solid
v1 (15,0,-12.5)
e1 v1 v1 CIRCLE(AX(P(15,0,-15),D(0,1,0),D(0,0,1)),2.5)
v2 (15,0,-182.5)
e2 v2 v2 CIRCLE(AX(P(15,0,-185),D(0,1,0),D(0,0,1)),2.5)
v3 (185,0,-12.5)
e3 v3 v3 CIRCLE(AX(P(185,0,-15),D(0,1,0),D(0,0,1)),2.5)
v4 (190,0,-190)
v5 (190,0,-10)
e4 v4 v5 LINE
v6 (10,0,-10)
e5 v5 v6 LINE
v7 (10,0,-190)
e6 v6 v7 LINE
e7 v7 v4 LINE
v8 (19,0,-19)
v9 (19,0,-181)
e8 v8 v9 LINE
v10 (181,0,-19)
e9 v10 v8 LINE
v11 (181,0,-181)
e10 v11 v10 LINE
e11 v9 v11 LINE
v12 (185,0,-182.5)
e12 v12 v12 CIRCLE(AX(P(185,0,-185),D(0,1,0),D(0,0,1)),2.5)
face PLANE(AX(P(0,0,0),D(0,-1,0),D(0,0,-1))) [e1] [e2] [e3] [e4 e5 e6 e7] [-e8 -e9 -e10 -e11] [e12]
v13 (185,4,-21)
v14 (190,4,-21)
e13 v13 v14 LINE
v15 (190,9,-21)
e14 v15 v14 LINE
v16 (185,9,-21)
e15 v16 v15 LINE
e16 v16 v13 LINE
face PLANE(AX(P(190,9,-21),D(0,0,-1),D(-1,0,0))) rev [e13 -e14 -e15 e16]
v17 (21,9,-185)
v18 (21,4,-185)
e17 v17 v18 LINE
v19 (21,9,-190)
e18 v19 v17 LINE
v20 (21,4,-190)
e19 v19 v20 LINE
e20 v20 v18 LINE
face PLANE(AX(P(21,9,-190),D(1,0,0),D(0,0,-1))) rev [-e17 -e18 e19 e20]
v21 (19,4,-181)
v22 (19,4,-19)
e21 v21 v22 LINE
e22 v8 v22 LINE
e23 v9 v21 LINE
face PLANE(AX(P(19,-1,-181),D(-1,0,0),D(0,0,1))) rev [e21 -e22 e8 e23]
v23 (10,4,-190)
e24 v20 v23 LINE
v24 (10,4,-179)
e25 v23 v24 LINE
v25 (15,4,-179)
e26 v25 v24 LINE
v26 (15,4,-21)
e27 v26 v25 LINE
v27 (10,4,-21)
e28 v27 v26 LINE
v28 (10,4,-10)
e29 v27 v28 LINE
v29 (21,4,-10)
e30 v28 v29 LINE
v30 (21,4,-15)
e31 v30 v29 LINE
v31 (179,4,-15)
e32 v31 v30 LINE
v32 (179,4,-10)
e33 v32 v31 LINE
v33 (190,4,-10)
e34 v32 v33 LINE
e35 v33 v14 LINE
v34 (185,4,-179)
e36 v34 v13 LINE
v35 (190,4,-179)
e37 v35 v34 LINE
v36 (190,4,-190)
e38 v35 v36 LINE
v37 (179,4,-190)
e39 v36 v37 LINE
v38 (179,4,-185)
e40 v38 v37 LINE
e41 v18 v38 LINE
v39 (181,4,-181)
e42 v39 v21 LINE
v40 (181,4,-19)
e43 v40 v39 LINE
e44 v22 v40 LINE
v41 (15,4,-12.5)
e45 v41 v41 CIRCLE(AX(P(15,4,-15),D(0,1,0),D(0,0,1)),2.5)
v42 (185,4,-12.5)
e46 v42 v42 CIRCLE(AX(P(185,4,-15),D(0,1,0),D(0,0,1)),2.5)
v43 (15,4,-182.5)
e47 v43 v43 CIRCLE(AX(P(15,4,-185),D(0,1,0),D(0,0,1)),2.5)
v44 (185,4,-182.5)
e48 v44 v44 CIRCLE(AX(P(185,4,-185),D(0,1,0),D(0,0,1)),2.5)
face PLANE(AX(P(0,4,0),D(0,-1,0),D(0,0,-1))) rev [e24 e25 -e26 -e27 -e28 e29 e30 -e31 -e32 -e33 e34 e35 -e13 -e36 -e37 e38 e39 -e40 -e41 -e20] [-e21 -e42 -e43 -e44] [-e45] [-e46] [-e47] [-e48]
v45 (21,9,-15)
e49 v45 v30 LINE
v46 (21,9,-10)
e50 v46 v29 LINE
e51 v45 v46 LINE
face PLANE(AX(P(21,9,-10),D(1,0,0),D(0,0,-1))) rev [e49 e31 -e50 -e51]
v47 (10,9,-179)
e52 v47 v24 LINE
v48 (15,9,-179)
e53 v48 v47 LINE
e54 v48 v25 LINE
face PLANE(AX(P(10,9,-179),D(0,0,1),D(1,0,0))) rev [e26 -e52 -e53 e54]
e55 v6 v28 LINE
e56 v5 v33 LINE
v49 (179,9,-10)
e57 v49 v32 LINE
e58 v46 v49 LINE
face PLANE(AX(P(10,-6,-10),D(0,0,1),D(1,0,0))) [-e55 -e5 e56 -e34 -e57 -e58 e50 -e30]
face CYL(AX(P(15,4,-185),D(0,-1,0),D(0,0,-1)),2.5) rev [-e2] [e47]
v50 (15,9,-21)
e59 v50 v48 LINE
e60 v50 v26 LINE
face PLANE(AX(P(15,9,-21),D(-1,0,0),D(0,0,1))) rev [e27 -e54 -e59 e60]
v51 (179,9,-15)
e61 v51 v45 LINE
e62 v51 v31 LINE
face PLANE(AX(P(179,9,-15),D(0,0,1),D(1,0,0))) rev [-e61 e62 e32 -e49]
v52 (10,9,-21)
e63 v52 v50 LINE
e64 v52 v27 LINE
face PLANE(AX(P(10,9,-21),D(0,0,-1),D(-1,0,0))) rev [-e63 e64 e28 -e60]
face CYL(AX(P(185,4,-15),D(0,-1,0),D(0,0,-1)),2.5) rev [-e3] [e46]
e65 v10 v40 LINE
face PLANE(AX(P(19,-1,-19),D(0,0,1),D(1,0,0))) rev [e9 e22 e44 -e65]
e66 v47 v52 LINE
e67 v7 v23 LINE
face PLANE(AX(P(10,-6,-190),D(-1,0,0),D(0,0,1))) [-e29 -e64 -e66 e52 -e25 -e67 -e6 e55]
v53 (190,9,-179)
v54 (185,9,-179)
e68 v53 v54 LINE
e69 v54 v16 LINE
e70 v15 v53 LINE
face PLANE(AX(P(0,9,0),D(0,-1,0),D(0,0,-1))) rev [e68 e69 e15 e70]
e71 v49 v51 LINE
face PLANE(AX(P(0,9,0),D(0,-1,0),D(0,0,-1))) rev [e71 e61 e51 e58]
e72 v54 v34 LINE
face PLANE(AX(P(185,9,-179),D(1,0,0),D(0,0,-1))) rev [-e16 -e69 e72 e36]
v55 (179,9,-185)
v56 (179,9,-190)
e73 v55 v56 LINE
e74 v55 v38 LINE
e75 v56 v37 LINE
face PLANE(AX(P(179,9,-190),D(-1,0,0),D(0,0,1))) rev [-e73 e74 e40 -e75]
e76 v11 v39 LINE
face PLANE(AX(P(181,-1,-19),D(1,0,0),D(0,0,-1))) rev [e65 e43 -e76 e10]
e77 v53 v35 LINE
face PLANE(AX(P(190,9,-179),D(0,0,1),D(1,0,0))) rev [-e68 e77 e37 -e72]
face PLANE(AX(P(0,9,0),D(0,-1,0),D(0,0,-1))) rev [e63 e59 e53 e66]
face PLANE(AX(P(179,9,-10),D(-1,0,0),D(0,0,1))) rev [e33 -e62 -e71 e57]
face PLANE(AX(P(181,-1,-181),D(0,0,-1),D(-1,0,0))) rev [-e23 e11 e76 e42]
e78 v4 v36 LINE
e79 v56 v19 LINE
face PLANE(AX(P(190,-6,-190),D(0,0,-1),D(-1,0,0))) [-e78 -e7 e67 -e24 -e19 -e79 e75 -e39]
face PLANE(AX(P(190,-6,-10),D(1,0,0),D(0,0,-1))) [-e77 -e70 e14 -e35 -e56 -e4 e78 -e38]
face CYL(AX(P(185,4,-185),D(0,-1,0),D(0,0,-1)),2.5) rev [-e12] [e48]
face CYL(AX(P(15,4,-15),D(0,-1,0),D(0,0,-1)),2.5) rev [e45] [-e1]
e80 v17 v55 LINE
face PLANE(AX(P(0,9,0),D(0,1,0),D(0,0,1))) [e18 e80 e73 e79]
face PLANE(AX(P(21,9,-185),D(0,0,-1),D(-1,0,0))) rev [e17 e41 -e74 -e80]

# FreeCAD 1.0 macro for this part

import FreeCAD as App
import Part
import Sketcher

V = App.Vector
Q = App.Units.Quantity

doc = App.newDocument("Part")
body = doc.addObject("PartDesign::Body", "Body")

# Sketch on XZ plane
sketch1 = doc.addObject("Sketcher::SketchObject", "Sketch")
body.addObject(sketch1)
sketch1.AttachmentSupport = (doc.XZ_Plane, [""])
sketch1.MapMode = "FlatFace"
sketch1.addGeometry([
    Part.LineSegment(V(0, -200, 0), V(0, 0, 0)),  # 0
    Part.LineSegment(V(0, 0, 0), V(200, 0, 0)),  # 1
    Part.LineSegment(V(200, 0, 0), V(200, -200, 0)),  # 2
    Part.LineSegment(V(200, -200, 0), V(0, -200, 0)),  # 3
    Part.Circle(V(15, -15, 0), V(0, 0, 1), 2.5),  # 4
    Part.Circle(V(185, -15, 0), V(0, 0, 1), 2.5),  # 5
    Part.Circle(V(15, -185, 0), V(0, 0, 1), 2.5),  # 6
    Part.Circle(V(185, -185, 0), V(0, 0, 1), 2.5),  # 7
], False)
sketch1.addConstraint([
    Sketcher.Constraint("Coincident", 0, 2, 1, 1),
    Sketcher.Constraint("Coincident", 1, 2, 2, 1),
    Sketcher.Constraint("Coincident", 2, 2, 3, 1),
    Sketcher.Constraint("Coincident", 3, 2, 0, 1),
    Sketcher.Constraint("Vertical", 0),
    Sketcher.Constraint("Horizontal", 1),
    Sketcher.Constraint("Vertical", 2),
    Sketcher.Constraint("Horizontal", 3),
    Sketcher.Constraint("Coincident", 0, 2, -1, 1),
    Sketcher.Constraint("Equal", 4, 5),
    Sketcher.Constraint("Equal", 5, 6),
    Sketcher.Constraint("Equal", 6, 7),
    Sketcher.Constraint("Horizontal", 4, 3, 5, 3),
    Sketcher.Constraint("Horizontal", 6, 3, 7, 3),
    Sketcher.Constraint("Vertical", 4, 3, 6, 3),
    Sketcher.Constraint("Vertical", 5, 3, 7, 3),
    Sketcher.Constraint("Equal", 3, 0),
    Sketcher.Constraint("Diameter", 4, Q("5 mm")),
    Sketcher.Constraint("DistanceX", 1, 1, 1, 2, Q("200 mm")),
    Sketcher.Constraint("DistanceX", -1, 1, 4, 3, Q("15 mm")),
    Sketcher.Constraint("DistanceY", 4, 3, -1, 1, Q("15 mm")),
    Sketcher.Constraint("DistanceX", -1, 1, 5, 3, Q("185 mm")),
    Sketcher.Constraint("DistanceY", 6, 3, -1, 1, Q("185 mm")),
])
pad1 = doc.addObject("PartDesign::Pad", "Pad")
body.addObject(pad1)
pad1.Profile = sketch1
pad1.Length = 4
pad1.Reversed = True

# Sketch on XZ plane
sketch2 = doc.addObject("Sketcher::SketchObject", "Sketch001")
body.addObject(sketch2)
sketch2.AttachmentSupport = (doc.XZ_Plane, [""])
sketch2.MapMode = "FlatFace"
sketch2.AttachmentOffset = App.Placement(V(0, 0, -4), App.Rotation())
sketch2.addGeometry([
    Part.LineSegment(V(21, -179, 0), V(21, -21, 0)),
    Part.LineSegment(V(21, -21, 0), V(179, -21, 0)),
    Part.LineSegment(V(179, -21, 0), V(179, -179, 0)),
    Part.LineSegment(V(179, -179, 0), V(21, -179, 0)),
], False)
sketch2.addConstraint([
    Sketcher.Constraint("Coincident", 0, 2, 1, 1),
    Sketcher.Constraint("Coincident", 1, 2, 2, 1),
    Sketcher.Constraint("Coincident", 2, 2, 3, 1),
    Sketcher.Constraint("Coincident", 3, 2, 0, 1),
    Sketcher.Constraint("Vertical", 0),
    Sketcher.Constraint("Horizontal", 1),
    Sketcher.Constraint("Vertical", 2),
    Sketcher.Constraint("Horizontal", 3),
    Sketcher.Constraint("Equal", 3, 0),
    Sketcher.Constraint("DistanceX", 1, 1, 1, 2, Q("158 mm")),
    Sketcher.Constraint("DistanceX", -1, 1, 0, 2, Q("21 mm")),
    Sketcher.Constraint("DistanceY", 0, 2, -1, 1, Q("21 mm")),
])
pocket1 = doc.addObject("PartDesign::Pocket", "Pocket")
body.addObject(pocket1)
pocket1.Profile = sketch2
pocket1.Length = 10
pocket1.Reversed = True

# Sketch on XZ plane
sketch3 = doc.addObject("Sketcher::SketchObject", "Sketch002")
body.addObject(sketch3)
sketch3.AttachmentSupport = (doc.XZ_Plane, [""])
sketch3.MapMode = "FlatFace"
sketch3.AttachmentOffset = App.Placement(V(0, 0, -4), App.Rotation())
sketch3.addGeometry([
    Part.LineSegment(V(0, -200, 0), V(0, 0, 0)),  # 0
    Part.LineSegment(V(0, 0, 0), V(200, 0, 0)),  # 1
    Part.LineSegment(V(200, 0, 0), V(200, -200, 0)),  # 2
    Part.LineSegment(V(200, -200, 0), V(0, -200, 0)),  # 3
    Part.LineSegment(V(190, -10, 0), V(10, -10, 0)),  # 4
    Part.LineSegment(V(10, -10, 0), V(10, -190, 0)),  # 5
    Part.LineSegment(V(10, -190, 0), V(190, -190, 0)),  # 6
    Part.LineSegment(V(190, -190, 0), V(190, -10, 0)),  # 7
], False)
sketch3.addConstraint([
    Sketcher.Constraint("Coincident", 0, 2, 1, 1),
    Sketcher.Constraint("Coincident", 1, 2, 2, 1),
    Sketcher.Constraint("Coincident", 2, 2, 3, 1),
    Sketcher.Constraint("Coincident", 3, 2, 0, 1),
    Sketcher.Constraint("Coincident", 4, 2, 5, 1),
    Sketcher.Constraint("Coincident", 5, 2, 6, 1),
    Sketcher.Constraint("Coincident", 6, 2, 7, 1),
    Sketcher.Constraint("Coincident", 7, 2, 4, 1),
    Sketcher.Constraint("Vertical", 0),
    Sketcher.Constraint("Horizontal", 1),
    Sketcher.Constraint("Vertical", 2),
    Sketcher.Constraint("Horizontal", 3),
    Sketcher.Constraint("Horizontal", 4),
    Sketcher.Constraint("Vertical", 5),
    Sketcher.Constraint("Horizontal", 6),
    Sketcher.Constraint("Vertical", 7),
    Sketcher.Constraint("Coincident", 0, 2, -1, 1),
    Sketcher.Constraint("Equal", 3, 0),
    Sketcher.Constraint("Equal", 6, 5),
    Sketcher.Constraint("DistanceX", 1, 1, 1, 2, Q("200 mm")),
    Sketcher.Constraint("DistanceX", 4, 2, 4, 1, Q("180 mm")),
    Sketcher.Constraint("DistanceX", -1, 1, 4, 2, Q("10 mm")),
    Sketcher.Constraint("DistanceY", 4, 2, -1, 1, Q("10 mm")),
])
pocket2 = doc.addObject("PartDesign::Pocket", "Pocket001")
body.addObject(pocket2)
pocket2.Profile = sketch3
pocket2.Length = 10
pocket2.Reversed = True

# Sketch on XZ plane
sketch4 = doc.addObject("Sketcher::SketchObject", "Sketch003")
body.addObject(sketch4)
sketch4.AttachmentSupport = (doc.XZ_Plane, [""])
sketch4.MapMode = "FlatFace"
sketch4.AttachmentOffset = App.Placement(V(0, 0, -4), App.Rotation())
sketch4.addGeometry([
    Part.LineSegment(V(21, -190, 0), V(21, -185, 0)),  # 0
    Part.LineSegment(V(21, -185, 0), V(179, -185, 0)),  # 1
    Part.LineSegment(V(179, -185, 0), V(179, -190, 0)),  # 2
    Part.LineSegment(V(179, -190, 0), V(21, -190, 0)),  # 3
    Part.LineSegment(V(185, -179, 0), V(185, -21, 0)),  # 4
    Part.LineSegment(V(185, -21, 0), V(190, -21, 0)),  # 5
    Part.LineSegment(V(190, -21, 0), V(190, -179, 0)),  # 6
    Part.LineSegment(V(190, -179, 0), V(185, -179, 0)),  # 7
    Part.LineSegment(V(21, -15, 0), V(21, -10, 0)),  # 8
    Part.LineSegment(V(21, -10, 0), V(179, -10, 0)),  # 9
    Part.LineSegment(V(179, -10, 0), V(179, -15, 0)),  # 10
    Part.LineSegment(V(179, -15, 0), V(21, -15, 0)),  # 11
    Part.LineSegment(V(10, -179, 0), V(10, -21, 0)),  # 12
    Part.LineSegment(V(10, -21, 0), V(15, -21, 0)),  # 13
    Part.LineSegment(V(15, -21, 0), V(15, -179, 0)),  # 14
    Part.LineSegment(V(15, -179, 0), V(10, -179, 0)),  # 15
], False)
sketch4.addConstraint([
    Sketcher.Constraint("Coincident", 0, 2, 1, 1),
    Sketcher.Constraint("Coincident", 1, 2, 2, 1),
    Sketcher.Constraint("Coincident", 2, 2, 3, 1),
    Sketcher.Constraint("Coincident", 3, 2, 0, 1),
    Sketcher.Constraint("Coincident", 4, 2, 5, 1),
    Sketcher.Constraint("Coincident", 5, 2, 6, 1),
    Sketcher.Constraint("Coincident", 6, 2, 7, 1),
    Sketcher.Constraint("Coincident", 7, 2, 4, 1),
    Sketcher.Constraint("Coincident", 8, 2, 9, 1),
    Sketcher.Constraint("Coincident", 9, 2, 10, 1),
    Sketcher.Constraint("Coincident", 10, 2, 11, 1),
    Sketcher.Constraint("Coincident", 11, 2, 8, 1),
    Sketcher.Constraint("Coincident", 12, 2, 13, 1),
    Sketcher.Constraint("Coincident", 13, 2, 14, 1),
    Sketcher.Constraint("Coincident", 14, 2, 15, 1),
    Sketcher.Constraint("Coincident", 15, 2, 12, 1),
    Sketcher.Constraint("Vertical", 0),
    Sketcher.Constraint("Horizontal", 1),
    Sketcher.Constraint("Vertical", 2),
    Sketcher.Constraint("Horizontal", 3),
    Sketcher.Constraint("Vertical", 4),
    Sketcher.Constraint("Horizontal", 5),
    Sketcher.Constraint("Vertical", 6),
    Sketcher.Constraint("Horizontal", 7),
    Sketcher.Constraint("Vertical", 8),
    Sketcher.Constraint("Horizontal", 9),
    Sketcher.Constraint("Vertical", 10),
    Sketcher.Constraint("Horizontal", 11),
    Sketcher.Constraint("Vertical", 12),
    Sketcher.Constraint("Horizontal", 13),
    Sketcher.Constraint("Vertical", 14),
    Sketcher.Constraint("Horizontal", 15),
    Sketcher.Constraint("Horizontal", 5, 2, 12, 2),
    Sketcher.Constraint("Horizontal", 7, 2, 14, 2),
    Sketcher.Constraint("Vertical", 3, 2, 8, 2),
    Sketcher.Constraint("Vertical", 2, 2, 9, 2),
    Sketcher.Constraint("Equal", 7, 13),
    Sketcher.Constraint("Equal", 15, 0),
    Sketcher.Constraint("Equal", 11, 4),
    Sketcher.Constraint("Equal", 2, 8),
    Sketcher.Constraint("DistanceX", 1, 1, 1, 2, Q("158 mm")),
    Sketcher.Constraint("DistanceX", 5, 1, 5, 2, Q("5 mm")),
    Sketcher.Constraint("DistanceX", -1, 1, 0, 2, Q("21 mm")),
    Sketcher.Constraint("DistanceY", 0, 2, -1, 1, Q("185 mm")),
    Sketcher.Constraint("DistanceX", -1, 1, 4, 2, Q("185 mm")),
    Sketcher.Constraint("DistanceY", 4, 2, -1, 1, Q("21 mm")),
    Sketcher.Constraint("DistanceY", 8, 2, -1, 1, Q("10 mm")),
    Sketcher.Constraint("DistanceX", -1, 1, 12, 2, Q("10 mm")),
])
pad2 = doc.addObject("PartDesign::Pad", "Pad001")
body.addObject(pad2)
pad2.Profile = sketch4
pad2.Length = 5
pad2.Reversed = True

# Sketch on XZ plane
sketch5 = doc.addObject("Sketcher::SketchObject", "Sketch004")
body.addObject(sketch5)
sketch5.AttachmentSupport = (doc.XZ_Plane, [""])
sketch5.MapMode = "FlatFace"
sketch5.AttachmentOffset = App.Placement(V(0, 0, -4), App.Rotation())
sketch5.addGeometry([
    Part.LineSegment(V(19, -181, 0), V(19, -19, 0)),  # 0
    Part.LineSegment(V(19, -19, 0), V(181, -19, 0)),  # 1
    Part.LineSegment(V(181, -19, 0), V(181, -181, 0)),  # 2
    Part.LineSegment(V(181, -181, 0), V(19, -181, 0)),  # 3
    Part.LineSegment(V(179, -21, 0), V(21, -21, 0)),  # 4
    Part.LineSegment(V(21, -21, 0), V(21, -179, 0)),  # 5
    Part.LineSegment(V(21, -179, 0), V(179, -179, 0)),  # 6
    Part.LineSegment(V(179, -179, 0), V(179, -21, 0)),  # 7
], False)
sketch5.addConstraint([
    Sketcher.Constraint("Coincident", 0, 2, 1, 1),
    Sketcher.Constraint("Coincident", 1, 2, 2, 1),
    Sketcher.Constraint("Coincident", 2, 2, 3, 1),
    Sketcher.Constraint("Coincident", 3, 2, 0, 1),
    Sketcher.Constraint("Coincident", 4, 2, 5, 1),
    Sketcher.Constraint("Coincident", 5, 2, 6, 1),
    Sketcher.Constraint("Coincident", 6, 2, 7, 1),
    Sketcher.Constraint("Coincident", 7, 2, 4, 1),
    Sketcher.Constraint("Vertical", 0),
    Sketcher.Constraint("Horizontal", 1),
    Sketcher.Constraint("Vertical", 2),
    Sketcher.Constraint("Horizontal", 3),
    Sketcher.Constraint("Horizontal", 4),
    Sketcher.Constraint("Vertical", 5),
    Sketcher.Constraint("Horizontal", 6),
    Sketcher.Constraint("Vertical", 7),
    Sketcher.Constraint("Equal", 3, 0),
    Sketcher.Constraint("Equal", 6, 5),
    Sketcher.Constraint("DistanceX", 1, 1, 1, 2, Q("162 mm")),
    Sketcher.Constraint("DistanceX", 4, 2, 4, 1, Q("158 mm")),
    Sketcher.Constraint("DistanceX", -1, 1, 0, 2, Q("19 mm")),
    Sketcher.Constraint("DistanceY", 0, 2, -1, 1, Q("19 mm")),
    Sketcher.Constraint("DistanceX", -1, 1, 4, 2, Q("21 mm")),
    Sketcher.Constraint("DistanceY", 4, 2, -1, 1, Q("21 mm")),
])
pocket3 = doc.addObject("PartDesign::Pocket", "Pocket002")
body.addObject(pocket3)
pocket3.Profile = sketch5
pocket3.Length = 5
pocket3.Reversed = True

doc.recompute()
